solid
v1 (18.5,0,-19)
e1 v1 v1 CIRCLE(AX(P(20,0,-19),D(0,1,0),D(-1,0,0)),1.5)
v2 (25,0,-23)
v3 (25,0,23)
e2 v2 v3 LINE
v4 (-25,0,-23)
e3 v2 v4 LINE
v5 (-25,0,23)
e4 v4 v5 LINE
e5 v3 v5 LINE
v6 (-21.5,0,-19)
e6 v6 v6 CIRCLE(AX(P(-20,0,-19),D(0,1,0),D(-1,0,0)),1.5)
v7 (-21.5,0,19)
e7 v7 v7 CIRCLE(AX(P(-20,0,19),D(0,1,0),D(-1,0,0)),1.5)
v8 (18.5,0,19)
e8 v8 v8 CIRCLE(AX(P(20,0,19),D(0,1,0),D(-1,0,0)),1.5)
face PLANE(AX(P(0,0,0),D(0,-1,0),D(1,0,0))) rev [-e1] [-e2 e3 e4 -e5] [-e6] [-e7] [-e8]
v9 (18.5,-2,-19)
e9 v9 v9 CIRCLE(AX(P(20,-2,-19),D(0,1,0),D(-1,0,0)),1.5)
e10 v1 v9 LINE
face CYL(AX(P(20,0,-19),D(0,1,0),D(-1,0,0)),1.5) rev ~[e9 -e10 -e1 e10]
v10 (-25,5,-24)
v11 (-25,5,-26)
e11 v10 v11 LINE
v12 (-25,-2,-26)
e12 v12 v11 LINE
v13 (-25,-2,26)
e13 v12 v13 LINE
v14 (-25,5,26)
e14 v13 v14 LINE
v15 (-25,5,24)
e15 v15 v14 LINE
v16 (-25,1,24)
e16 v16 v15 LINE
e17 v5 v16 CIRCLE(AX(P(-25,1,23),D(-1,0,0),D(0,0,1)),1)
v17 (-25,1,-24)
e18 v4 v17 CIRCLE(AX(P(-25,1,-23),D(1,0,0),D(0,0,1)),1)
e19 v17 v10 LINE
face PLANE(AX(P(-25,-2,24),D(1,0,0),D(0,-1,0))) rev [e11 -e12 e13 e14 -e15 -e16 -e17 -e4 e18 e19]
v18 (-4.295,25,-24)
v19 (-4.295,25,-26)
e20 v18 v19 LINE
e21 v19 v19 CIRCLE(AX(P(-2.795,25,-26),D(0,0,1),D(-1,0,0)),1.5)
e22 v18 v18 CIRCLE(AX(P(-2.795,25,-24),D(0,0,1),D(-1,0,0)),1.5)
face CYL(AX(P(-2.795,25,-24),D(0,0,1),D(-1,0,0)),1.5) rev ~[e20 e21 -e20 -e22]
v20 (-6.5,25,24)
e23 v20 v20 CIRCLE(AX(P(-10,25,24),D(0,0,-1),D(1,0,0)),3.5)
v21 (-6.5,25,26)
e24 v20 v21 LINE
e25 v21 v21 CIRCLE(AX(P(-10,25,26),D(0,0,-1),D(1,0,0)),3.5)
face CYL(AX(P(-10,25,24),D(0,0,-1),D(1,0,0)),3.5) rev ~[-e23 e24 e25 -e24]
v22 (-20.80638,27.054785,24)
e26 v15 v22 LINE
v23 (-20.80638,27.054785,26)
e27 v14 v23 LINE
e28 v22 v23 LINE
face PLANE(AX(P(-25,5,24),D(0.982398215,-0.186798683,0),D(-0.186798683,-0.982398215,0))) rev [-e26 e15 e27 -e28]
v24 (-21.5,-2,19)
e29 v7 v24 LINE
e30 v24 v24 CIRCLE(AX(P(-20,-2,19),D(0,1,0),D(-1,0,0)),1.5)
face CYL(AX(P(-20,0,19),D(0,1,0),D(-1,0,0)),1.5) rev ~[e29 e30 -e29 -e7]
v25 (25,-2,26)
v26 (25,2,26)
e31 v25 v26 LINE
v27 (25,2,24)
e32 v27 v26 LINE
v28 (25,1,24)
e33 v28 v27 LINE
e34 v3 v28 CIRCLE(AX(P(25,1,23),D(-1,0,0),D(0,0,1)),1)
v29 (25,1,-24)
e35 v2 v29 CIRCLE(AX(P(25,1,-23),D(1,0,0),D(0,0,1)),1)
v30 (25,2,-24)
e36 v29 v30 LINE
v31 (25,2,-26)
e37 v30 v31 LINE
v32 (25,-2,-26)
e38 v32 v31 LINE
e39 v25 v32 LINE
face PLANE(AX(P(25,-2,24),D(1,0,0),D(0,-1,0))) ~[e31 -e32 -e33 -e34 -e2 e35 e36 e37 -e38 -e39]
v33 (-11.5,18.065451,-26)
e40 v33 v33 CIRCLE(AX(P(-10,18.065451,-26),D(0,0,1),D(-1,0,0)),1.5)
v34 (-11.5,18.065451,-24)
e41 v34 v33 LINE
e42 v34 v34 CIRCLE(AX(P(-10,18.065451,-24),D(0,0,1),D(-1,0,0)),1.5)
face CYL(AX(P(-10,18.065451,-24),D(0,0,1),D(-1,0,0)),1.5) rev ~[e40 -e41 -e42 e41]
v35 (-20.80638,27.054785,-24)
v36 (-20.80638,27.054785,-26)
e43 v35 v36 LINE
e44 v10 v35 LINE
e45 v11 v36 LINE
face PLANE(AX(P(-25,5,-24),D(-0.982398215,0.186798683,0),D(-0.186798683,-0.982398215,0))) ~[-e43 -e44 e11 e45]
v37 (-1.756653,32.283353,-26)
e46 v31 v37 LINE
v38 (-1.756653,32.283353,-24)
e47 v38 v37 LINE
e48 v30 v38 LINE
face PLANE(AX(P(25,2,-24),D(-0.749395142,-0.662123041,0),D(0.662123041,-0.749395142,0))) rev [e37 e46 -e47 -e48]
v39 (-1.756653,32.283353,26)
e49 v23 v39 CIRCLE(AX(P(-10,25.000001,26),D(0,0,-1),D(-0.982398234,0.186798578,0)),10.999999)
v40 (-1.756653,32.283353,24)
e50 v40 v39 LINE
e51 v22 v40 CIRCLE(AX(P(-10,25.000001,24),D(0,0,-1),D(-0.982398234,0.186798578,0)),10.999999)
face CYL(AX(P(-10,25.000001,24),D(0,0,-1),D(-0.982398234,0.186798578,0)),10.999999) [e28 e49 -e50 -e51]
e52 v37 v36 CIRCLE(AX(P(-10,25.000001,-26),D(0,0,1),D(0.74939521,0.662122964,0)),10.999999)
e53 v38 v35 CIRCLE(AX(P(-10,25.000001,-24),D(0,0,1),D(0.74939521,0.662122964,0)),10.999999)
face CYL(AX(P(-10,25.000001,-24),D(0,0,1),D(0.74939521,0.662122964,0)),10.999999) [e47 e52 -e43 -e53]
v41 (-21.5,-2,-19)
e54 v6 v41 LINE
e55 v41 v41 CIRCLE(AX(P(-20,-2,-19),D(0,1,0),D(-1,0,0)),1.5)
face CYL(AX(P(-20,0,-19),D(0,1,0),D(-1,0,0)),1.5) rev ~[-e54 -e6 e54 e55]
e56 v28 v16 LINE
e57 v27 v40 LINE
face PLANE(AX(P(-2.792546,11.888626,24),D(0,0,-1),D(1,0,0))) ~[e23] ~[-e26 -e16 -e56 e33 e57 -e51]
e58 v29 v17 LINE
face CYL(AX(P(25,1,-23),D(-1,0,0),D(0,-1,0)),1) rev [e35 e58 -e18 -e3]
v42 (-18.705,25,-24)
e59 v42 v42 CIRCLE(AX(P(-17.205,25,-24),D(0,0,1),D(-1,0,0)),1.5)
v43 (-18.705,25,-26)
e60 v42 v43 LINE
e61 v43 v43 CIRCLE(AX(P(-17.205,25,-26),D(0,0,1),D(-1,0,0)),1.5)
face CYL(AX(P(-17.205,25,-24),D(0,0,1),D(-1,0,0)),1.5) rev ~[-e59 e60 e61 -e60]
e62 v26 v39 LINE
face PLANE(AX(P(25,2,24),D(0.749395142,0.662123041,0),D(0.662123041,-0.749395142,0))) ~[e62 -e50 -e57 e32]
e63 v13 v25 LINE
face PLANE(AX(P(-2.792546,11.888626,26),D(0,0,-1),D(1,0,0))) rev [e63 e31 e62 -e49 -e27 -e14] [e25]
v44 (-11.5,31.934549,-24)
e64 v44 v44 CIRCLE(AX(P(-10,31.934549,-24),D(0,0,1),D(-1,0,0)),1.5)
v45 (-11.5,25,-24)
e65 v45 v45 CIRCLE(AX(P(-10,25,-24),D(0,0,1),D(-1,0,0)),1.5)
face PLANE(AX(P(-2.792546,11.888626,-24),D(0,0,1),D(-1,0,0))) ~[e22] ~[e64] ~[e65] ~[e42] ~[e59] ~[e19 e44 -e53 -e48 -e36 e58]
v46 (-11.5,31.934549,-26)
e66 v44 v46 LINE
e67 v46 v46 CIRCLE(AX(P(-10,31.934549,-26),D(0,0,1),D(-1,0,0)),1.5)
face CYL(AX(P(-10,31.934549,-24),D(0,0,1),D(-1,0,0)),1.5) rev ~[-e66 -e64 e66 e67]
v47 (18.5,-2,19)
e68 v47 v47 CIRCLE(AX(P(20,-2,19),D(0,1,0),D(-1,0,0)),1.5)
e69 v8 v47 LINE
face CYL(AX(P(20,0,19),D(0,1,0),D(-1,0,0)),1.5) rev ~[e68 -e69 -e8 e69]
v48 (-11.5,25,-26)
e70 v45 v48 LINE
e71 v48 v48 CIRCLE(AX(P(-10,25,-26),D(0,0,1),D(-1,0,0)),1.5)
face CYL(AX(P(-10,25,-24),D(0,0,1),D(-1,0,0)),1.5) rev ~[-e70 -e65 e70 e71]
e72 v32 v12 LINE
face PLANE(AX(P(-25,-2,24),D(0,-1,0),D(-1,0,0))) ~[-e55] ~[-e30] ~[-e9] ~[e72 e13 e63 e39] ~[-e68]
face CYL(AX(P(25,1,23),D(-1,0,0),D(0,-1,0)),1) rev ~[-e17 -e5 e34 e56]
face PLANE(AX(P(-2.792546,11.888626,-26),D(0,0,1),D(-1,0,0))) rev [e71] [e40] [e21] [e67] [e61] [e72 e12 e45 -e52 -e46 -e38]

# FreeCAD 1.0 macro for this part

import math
import FreeCAD as App
import Part
import Sketcher

V = App.Vector


def edges_at(feature, points):
    """Names of the edges that pass closest to the given points."""
    edges = feature.Shape.Edges
    near = lambda p: min(range(len(edges)), key=lambda i: edges[i].distToShape(Part.Vertex(*p))[0])
    return sorted({f"Edge{near(p) + 1}" for p in points})


def add_polygon(sketch, points):
    """Adds a closed chain of lines whose ends are joined by coincident constraints."""
    first, n = sketch.GeometryCount, len(points)
    for a, b in zip(points, points[1:] + points[:1]):
        sketch.addGeometry(Part.LineSegment(App.Vector(*a, 0), App.Vector(*b, 0)), False)
    for i in range(n):
        sketch.addConstraint(Sketcher.Constraint("Coincident", first + i, 2, first + (i + 1) % n, 1))

doc = App.newDocument("Part")
params = doc.addObject("Spreadsheet::Sheet", "Params")
for row, (alias, value) in enumerate([
    ("sketch1_diameter", "3 mm"),
    ("sketch1_width", "50 mm"),
    ("sketch1_height", "48 mm"),
    ("pad1_length", "2 mm"),
    ("sketch2_diameter", "3 mm"),
    ("sketch2_radius", "10.999999 mm"),
    ("sketch2_width", "50 mm"),
    ("sketch2_height", "4 mm"),
    ("sketch2_height2", "7 mm"),
    ("pad2_length", "2 mm"),
    ("sketch3_diameter", "7 mm"),
    ("sketch3_radius", "10.999999 mm"),
    ("sketch3_width", "50 mm"),
    ("sketch3_height", "7 mm"),
    ("sketch3_height2", "4 mm"),
    ("pad3_length", "2 mm"),
    ("fillet_radius", "1 mm"),
    ("fillet2_radius", "1 mm"),
], start=1):
    params.set(f"A{row}", alias)
    params.set(f"B{row}", "=" + value)
    params.setAlias(f"B{row}", alias)

body = doc.addObject("PartDesign::Body", "Body")

# Sketch on XZ plane
sketch1 = doc.addObject("Sketcher::SketchObject", "Sketch")
body.addObject(sketch1)
sketch1.AttachmentSupport = (doc.XZ_Plane, [""])
sketch1.MapMode = "FlatFace"
add_polygon(sketch1, [(-25, 24), (-25, -24), (25, -24), (25, 24)])  # lines 0-3
sketch1.addGeometry(Part.Circle(V(-20, -19, 0), V(0, 0, 1), 1.5), False)  # 4
sketch1.addGeometry(Part.Circle(V(20, -19, 0), V(0, 0, 1), 1.5), False)  # 5
sketch1.addGeometry(Part.Circle(V(-20, 19, 0), V(0, 0, 1), 1.5), False)  # 6
sketch1.addGeometry(Part.Circle(V(20, 19, 0), V(0, 0, 1), 1.5), False)  # 7
sketch1.addConstraint([
    Sketcher.Constraint("Vertical", 0),
    Sketcher.Constraint("Horizontal", 1),
    Sketcher.Constraint("Vertical", 2),
    Sketcher.Constraint("Horizontal", 3),
    Sketcher.Constraint("Equal", 4, 5),
    Sketcher.Constraint("Equal", 5, 6),
    Sketcher.Constraint("Equal", 6, 7),
    Sketcher.Constraint("Symmetric", 5, 3, 6, 3, -1, 1),
    Sketcher.Constraint("Symmetric", 4, 3, 7, 3, -1, 1),
    Sketcher.Constraint("Symmetric", 0, 2, 2, 2, -1, 1),
    Sketcher.Constraint("Symmetric", 4, 3, 5, 3, -2),
    Sketcher.Constraint("Diameter", 4, 3.0),
    Sketcher.Constraint("DistanceX", 1, 1, 1, 2, 50.0),
    Sketcher.Constraint("DistanceY", 0, 2, 0, 1, 48.0),
    Sketcher.Constraint("DistanceX", 4, 3, -1, 1, 20.0),
    Sketcher.Constraint("DistanceY", 4, 3, -1, 1, 19.0),
])
sketch1.setExpression("Constraints[15]", "Params.sketch1_diameter")
sketch1.setExpression("Constraints[16]", "Params.sketch1_width")
sketch1.setExpression("Constraints[17]", "Params.sketch1_height")
pad1 = doc.addObject("PartDesign::Pad", "Pad")
body.addObject(pad1)
pad1.Profile = sketch1
pad1.setExpression("Length", "Params.pad1_length")

# Sketch on XY plane
sketch2 = doc.addObject("Sketcher::SketchObject", "Sketch001")
body.addObject(sketch2)
sketch2.AttachmentSupport = (doc.XY_Plane, [""])
sketch2.MapMode = "FlatFace"
sketch2.AttachmentOffset = App.Placement(V(0, 0, -24), App.Rotation())
sketch2.addGeometry([
    Part.LineSegment(V(-25, -2, 0), V(-25, 2, 0)),  # 0
    Part.LineSegment(V(-25, 2, 0), V(1.8, 32.3, 0)),  # 1
    Part.ArcOfCircle(Part.Circle(V(10, 25, 0), V(0, 0, 1), 11), math.radians(11), math.radians(139)),  # 2
    Part.LineSegment(V(20.8, 27.1, 0), V(25, 5, 0)),  # 3
    Part.LineSegment(V(25, 5, 0), V(25, -2, 0)),  # 4
    Part.LineSegment(V(25, -2, 0), V(-25, -2, 0)),  # 5
    Part.Circle(V(10, 31.9, 0), V(0, 0, 1), 1.5),  # 6
    Part.Circle(V(17.2, 25, 0), V(0, 0, 1), 1.5),  # 7
    Part.Circle(V(10, 25, 0), V(0, 0, 1), 1.5),  # 8
    Part.Circle(V(10, 18.1, 0), V(0, 0, 1), 1.5),  # 9
    Part.Circle(V(2.8, 25, 0), V(0, 0, 1), 1.5),  # 10
], False)
sketch2.addConstraint([
    Sketcher.Constraint("Coincident", 0, 2, 1, 1),
    Sketcher.Constraint("Tangent", 1, 2, 2, 2),
    Sketcher.Constraint("Tangent", 2, 1, 3, 1),
    Sketcher.Constraint("Coincident", 3, 2, 4, 1),
    Sketcher.Constraint("Coincident", 4, 2, 5, 1),
    Sketcher.Constraint("Coincident", 5, 2, 0, 1),
    Sketcher.Constraint("Vertical", 0),
    Sketcher.Constraint("Vertical", 4),
    Sketcher.Constraint("Horizontal", 5),
    Sketcher.Constraint("Coincident", 8, 3, 2, 3),
    Sketcher.Constraint("Equal", 6, 7),
    Sketcher.Constraint("Equal", 7, 8),
    Sketcher.Constraint("Equal", 8, 9),
    Sketcher.Constraint("Equal", 9, 10),
    Sketcher.Constraint("Symmetric", 0, 2, 4, 2, -1, 1),
    Sketcher.Constraint("Horizontal", 2, 3, 7, 3),
    Sketcher.Constraint("Horizontal", 8, 3, 10, 3),
    Sketcher.Constraint("Vertical", 2, 3, 6, 3),
    Sketcher.Constraint("Vertical", 8, 3, 9, 3),
    Sketcher.Constraint("Diameter", 6, 3.0),
    Sketcher.Constraint("Radius", 2, 10.999999),
    Sketcher.Constraint("DistanceX", 5, 2, 5, 1, 50.0),
    Sketcher.Constraint("DistanceY", 0, 1, 0, 2, 4.0),
    Sketcher.Constraint("DistanceY", 4, 2, 4, 1, 7.0),
    Sketcher.Constraint("DistanceX", -1, 1, 2, 3, 10.0),
    Sketcher.Constraint("DistanceY", -1, 1, 2, 3, 25.000001),
    Sketcher.Constraint("DistanceX", 10, 3, 7, 3, 14.41),
    Sketcher.Constraint("DistanceX", -1, 1, 7, 3, 17.205),
    Sketcher.Constraint("DistanceY", 9, 3, 6, 3, 13.869098),
    Sketcher.Constraint("DistanceY", 9, 3, 1, 2, 14.217902),
])
sketch2.setExpression("Constraints[19]", "Params.sketch2_diameter")
sketch2.setExpression("Constraints[20]", "Params.sketch2_radius")
sketch2.setExpression("Constraints[21]", "Params.sketch2_width")
sketch2.setExpression("Constraints[22]", "Params.sketch2_height")
sketch2.setExpression("Constraints[23]", "Params.sketch2_height2")
pad2 = doc.addObject("PartDesign::Pad", "Pad001")
body.addObject(pad2)
pad2.Profile = sketch2
pad2.setExpression("Length", "Params.pad2_length")
pad2.Reversed = True

# Sketch on XY plane
sketch3 = doc.addObject("Sketcher::SketchObject", "Sketch002")
body.addObject(sketch3)
sketch3.AttachmentSupport = (doc.XY_Plane, [""])
sketch3.MapMode = "FlatFace"
sketch3.AttachmentOffset = App.Placement(V(0, 0, 24), App.Rotation())
sketch3.addGeometry([
    Part.LineSegment(V(-25, -2, 0), V(25, -2, 0)),  # 0
    Part.LineSegment(V(25, -2, 0), V(25, 5, 0)),  # 1
    Part.LineSegment(V(25, 5, 0), V(20.8, 27.1, 0)),  # 2
    Part.ArcOfCircle(Part.Circle(V(10, 25, 0), V(0, 0, 1), 11), math.radians(11), math.radians(139)),  # 3
    Part.LineSegment(V(1.8, 32.3, 0), V(-25, 2, 0)),  # 4
    Part.LineSegment(V(-25, 2, 0), V(-25, -2, 0)),  # 5
    Part.Circle(V(10, 25, 0), V(0, 0, 1), 3.5),  # 6
], False)
sketch3.addConstraint([
    Sketcher.Constraint("Coincident", 0, 2, 1, 1),
    Sketcher.Constraint("Coincident", 1, 2, 2, 1),
    Sketcher.Constraint("Tangent", 2, 2, 3, 1),
    Sketcher.Constraint("Tangent", 3, 2, 4, 1),
    Sketcher.Constraint("Coincident", 4, 2, 5, 1),
    Sketcher.Constraint("Coincident", 5, 2, 0, 1),
    Sketcher.Constraint("Horizontal", 0),
    Sketcher.Constraint("Vertical", 1),
    Sketcher.Constraint("Vertical", 5),
    Sketcher.Constraint("Coincident", 6, 3, 3, 3),
    Sketcher.Constraint("Symmetric", 0, 2, 4, 2, -1, 1),
    Sketcher.Constraint("Diameter", 6, 7.0),
    Sketcher.Constraint("Radius", 3, 10.999999),
    Sketcher.Constraint("DistanceX", 0, 1, 0, 2, 50.0),
    Sketcher.Constraint("DistanceY", 1, 1, 1, 2, 7.0),
    Sketcher.Constraint("DistanceY", 5, 2, 5, 1, 4.0),
    Sketcher.Constraint("DistanceX", -1, 1, 3, 3, 10.0),
    Sketcher.Constraint("DistanceY", -1, 1, 3, 3, 25.000001),
])
sketch3.setExpression("Constraints[11]", "Params.sketch3_diameter")
sketch3.setExpression("Constraints[12]", "Params.sketch3_radius")
sketch3.setExpression("Constraints[13]", "Params.sketch3_width")
sketch3.setExpression("Constraints[14]", "Params.sketch3_height")
sketch3.setExpression("Constraints[15]", "Params.sketch3_height2")
pad3 = doc.addObject("PartDesign::Pad", "Pad002")
body.addObject(pad3)
pad3.Profile = sketch3
pad3.setExpression("Length", "Params.pad3_length")
doc.recompute()

fillet = doc.addObject("PartDesign::Fillet", "Fillet")
body.addObject(fillet)
fillet.Base = (pad3, edges_at(pad3, [(0, 0, -24)]))
fillet.setExpression("Radius", "Params.fillet_radius")
doc.recompute()

fillet2 = doc.addObject("PartDesign::Fillet", "Fillet001")
body.addObject(fillet2)
fillet2.Base = (fillet, edges_at(fillet, [(0, 0, 24)]))
fillet2.setExpression("Radius", "Params.fillet2_radius")
body2 = doc.addObject("PartDesign::Body", "Body001")
doc.recompute()

mirroring = doc.addObject("Part::Mirroring", "Mirroring")
mirroring.Source = body
mirroring.Base = V(0, 0, 0)
mirroring.Normal = V(1, 0, 0)
body2.BaseFeature = mirroring
doc.recompute()
body.Visibility = False
mirroring.Visibility = False

doc.recompute()
